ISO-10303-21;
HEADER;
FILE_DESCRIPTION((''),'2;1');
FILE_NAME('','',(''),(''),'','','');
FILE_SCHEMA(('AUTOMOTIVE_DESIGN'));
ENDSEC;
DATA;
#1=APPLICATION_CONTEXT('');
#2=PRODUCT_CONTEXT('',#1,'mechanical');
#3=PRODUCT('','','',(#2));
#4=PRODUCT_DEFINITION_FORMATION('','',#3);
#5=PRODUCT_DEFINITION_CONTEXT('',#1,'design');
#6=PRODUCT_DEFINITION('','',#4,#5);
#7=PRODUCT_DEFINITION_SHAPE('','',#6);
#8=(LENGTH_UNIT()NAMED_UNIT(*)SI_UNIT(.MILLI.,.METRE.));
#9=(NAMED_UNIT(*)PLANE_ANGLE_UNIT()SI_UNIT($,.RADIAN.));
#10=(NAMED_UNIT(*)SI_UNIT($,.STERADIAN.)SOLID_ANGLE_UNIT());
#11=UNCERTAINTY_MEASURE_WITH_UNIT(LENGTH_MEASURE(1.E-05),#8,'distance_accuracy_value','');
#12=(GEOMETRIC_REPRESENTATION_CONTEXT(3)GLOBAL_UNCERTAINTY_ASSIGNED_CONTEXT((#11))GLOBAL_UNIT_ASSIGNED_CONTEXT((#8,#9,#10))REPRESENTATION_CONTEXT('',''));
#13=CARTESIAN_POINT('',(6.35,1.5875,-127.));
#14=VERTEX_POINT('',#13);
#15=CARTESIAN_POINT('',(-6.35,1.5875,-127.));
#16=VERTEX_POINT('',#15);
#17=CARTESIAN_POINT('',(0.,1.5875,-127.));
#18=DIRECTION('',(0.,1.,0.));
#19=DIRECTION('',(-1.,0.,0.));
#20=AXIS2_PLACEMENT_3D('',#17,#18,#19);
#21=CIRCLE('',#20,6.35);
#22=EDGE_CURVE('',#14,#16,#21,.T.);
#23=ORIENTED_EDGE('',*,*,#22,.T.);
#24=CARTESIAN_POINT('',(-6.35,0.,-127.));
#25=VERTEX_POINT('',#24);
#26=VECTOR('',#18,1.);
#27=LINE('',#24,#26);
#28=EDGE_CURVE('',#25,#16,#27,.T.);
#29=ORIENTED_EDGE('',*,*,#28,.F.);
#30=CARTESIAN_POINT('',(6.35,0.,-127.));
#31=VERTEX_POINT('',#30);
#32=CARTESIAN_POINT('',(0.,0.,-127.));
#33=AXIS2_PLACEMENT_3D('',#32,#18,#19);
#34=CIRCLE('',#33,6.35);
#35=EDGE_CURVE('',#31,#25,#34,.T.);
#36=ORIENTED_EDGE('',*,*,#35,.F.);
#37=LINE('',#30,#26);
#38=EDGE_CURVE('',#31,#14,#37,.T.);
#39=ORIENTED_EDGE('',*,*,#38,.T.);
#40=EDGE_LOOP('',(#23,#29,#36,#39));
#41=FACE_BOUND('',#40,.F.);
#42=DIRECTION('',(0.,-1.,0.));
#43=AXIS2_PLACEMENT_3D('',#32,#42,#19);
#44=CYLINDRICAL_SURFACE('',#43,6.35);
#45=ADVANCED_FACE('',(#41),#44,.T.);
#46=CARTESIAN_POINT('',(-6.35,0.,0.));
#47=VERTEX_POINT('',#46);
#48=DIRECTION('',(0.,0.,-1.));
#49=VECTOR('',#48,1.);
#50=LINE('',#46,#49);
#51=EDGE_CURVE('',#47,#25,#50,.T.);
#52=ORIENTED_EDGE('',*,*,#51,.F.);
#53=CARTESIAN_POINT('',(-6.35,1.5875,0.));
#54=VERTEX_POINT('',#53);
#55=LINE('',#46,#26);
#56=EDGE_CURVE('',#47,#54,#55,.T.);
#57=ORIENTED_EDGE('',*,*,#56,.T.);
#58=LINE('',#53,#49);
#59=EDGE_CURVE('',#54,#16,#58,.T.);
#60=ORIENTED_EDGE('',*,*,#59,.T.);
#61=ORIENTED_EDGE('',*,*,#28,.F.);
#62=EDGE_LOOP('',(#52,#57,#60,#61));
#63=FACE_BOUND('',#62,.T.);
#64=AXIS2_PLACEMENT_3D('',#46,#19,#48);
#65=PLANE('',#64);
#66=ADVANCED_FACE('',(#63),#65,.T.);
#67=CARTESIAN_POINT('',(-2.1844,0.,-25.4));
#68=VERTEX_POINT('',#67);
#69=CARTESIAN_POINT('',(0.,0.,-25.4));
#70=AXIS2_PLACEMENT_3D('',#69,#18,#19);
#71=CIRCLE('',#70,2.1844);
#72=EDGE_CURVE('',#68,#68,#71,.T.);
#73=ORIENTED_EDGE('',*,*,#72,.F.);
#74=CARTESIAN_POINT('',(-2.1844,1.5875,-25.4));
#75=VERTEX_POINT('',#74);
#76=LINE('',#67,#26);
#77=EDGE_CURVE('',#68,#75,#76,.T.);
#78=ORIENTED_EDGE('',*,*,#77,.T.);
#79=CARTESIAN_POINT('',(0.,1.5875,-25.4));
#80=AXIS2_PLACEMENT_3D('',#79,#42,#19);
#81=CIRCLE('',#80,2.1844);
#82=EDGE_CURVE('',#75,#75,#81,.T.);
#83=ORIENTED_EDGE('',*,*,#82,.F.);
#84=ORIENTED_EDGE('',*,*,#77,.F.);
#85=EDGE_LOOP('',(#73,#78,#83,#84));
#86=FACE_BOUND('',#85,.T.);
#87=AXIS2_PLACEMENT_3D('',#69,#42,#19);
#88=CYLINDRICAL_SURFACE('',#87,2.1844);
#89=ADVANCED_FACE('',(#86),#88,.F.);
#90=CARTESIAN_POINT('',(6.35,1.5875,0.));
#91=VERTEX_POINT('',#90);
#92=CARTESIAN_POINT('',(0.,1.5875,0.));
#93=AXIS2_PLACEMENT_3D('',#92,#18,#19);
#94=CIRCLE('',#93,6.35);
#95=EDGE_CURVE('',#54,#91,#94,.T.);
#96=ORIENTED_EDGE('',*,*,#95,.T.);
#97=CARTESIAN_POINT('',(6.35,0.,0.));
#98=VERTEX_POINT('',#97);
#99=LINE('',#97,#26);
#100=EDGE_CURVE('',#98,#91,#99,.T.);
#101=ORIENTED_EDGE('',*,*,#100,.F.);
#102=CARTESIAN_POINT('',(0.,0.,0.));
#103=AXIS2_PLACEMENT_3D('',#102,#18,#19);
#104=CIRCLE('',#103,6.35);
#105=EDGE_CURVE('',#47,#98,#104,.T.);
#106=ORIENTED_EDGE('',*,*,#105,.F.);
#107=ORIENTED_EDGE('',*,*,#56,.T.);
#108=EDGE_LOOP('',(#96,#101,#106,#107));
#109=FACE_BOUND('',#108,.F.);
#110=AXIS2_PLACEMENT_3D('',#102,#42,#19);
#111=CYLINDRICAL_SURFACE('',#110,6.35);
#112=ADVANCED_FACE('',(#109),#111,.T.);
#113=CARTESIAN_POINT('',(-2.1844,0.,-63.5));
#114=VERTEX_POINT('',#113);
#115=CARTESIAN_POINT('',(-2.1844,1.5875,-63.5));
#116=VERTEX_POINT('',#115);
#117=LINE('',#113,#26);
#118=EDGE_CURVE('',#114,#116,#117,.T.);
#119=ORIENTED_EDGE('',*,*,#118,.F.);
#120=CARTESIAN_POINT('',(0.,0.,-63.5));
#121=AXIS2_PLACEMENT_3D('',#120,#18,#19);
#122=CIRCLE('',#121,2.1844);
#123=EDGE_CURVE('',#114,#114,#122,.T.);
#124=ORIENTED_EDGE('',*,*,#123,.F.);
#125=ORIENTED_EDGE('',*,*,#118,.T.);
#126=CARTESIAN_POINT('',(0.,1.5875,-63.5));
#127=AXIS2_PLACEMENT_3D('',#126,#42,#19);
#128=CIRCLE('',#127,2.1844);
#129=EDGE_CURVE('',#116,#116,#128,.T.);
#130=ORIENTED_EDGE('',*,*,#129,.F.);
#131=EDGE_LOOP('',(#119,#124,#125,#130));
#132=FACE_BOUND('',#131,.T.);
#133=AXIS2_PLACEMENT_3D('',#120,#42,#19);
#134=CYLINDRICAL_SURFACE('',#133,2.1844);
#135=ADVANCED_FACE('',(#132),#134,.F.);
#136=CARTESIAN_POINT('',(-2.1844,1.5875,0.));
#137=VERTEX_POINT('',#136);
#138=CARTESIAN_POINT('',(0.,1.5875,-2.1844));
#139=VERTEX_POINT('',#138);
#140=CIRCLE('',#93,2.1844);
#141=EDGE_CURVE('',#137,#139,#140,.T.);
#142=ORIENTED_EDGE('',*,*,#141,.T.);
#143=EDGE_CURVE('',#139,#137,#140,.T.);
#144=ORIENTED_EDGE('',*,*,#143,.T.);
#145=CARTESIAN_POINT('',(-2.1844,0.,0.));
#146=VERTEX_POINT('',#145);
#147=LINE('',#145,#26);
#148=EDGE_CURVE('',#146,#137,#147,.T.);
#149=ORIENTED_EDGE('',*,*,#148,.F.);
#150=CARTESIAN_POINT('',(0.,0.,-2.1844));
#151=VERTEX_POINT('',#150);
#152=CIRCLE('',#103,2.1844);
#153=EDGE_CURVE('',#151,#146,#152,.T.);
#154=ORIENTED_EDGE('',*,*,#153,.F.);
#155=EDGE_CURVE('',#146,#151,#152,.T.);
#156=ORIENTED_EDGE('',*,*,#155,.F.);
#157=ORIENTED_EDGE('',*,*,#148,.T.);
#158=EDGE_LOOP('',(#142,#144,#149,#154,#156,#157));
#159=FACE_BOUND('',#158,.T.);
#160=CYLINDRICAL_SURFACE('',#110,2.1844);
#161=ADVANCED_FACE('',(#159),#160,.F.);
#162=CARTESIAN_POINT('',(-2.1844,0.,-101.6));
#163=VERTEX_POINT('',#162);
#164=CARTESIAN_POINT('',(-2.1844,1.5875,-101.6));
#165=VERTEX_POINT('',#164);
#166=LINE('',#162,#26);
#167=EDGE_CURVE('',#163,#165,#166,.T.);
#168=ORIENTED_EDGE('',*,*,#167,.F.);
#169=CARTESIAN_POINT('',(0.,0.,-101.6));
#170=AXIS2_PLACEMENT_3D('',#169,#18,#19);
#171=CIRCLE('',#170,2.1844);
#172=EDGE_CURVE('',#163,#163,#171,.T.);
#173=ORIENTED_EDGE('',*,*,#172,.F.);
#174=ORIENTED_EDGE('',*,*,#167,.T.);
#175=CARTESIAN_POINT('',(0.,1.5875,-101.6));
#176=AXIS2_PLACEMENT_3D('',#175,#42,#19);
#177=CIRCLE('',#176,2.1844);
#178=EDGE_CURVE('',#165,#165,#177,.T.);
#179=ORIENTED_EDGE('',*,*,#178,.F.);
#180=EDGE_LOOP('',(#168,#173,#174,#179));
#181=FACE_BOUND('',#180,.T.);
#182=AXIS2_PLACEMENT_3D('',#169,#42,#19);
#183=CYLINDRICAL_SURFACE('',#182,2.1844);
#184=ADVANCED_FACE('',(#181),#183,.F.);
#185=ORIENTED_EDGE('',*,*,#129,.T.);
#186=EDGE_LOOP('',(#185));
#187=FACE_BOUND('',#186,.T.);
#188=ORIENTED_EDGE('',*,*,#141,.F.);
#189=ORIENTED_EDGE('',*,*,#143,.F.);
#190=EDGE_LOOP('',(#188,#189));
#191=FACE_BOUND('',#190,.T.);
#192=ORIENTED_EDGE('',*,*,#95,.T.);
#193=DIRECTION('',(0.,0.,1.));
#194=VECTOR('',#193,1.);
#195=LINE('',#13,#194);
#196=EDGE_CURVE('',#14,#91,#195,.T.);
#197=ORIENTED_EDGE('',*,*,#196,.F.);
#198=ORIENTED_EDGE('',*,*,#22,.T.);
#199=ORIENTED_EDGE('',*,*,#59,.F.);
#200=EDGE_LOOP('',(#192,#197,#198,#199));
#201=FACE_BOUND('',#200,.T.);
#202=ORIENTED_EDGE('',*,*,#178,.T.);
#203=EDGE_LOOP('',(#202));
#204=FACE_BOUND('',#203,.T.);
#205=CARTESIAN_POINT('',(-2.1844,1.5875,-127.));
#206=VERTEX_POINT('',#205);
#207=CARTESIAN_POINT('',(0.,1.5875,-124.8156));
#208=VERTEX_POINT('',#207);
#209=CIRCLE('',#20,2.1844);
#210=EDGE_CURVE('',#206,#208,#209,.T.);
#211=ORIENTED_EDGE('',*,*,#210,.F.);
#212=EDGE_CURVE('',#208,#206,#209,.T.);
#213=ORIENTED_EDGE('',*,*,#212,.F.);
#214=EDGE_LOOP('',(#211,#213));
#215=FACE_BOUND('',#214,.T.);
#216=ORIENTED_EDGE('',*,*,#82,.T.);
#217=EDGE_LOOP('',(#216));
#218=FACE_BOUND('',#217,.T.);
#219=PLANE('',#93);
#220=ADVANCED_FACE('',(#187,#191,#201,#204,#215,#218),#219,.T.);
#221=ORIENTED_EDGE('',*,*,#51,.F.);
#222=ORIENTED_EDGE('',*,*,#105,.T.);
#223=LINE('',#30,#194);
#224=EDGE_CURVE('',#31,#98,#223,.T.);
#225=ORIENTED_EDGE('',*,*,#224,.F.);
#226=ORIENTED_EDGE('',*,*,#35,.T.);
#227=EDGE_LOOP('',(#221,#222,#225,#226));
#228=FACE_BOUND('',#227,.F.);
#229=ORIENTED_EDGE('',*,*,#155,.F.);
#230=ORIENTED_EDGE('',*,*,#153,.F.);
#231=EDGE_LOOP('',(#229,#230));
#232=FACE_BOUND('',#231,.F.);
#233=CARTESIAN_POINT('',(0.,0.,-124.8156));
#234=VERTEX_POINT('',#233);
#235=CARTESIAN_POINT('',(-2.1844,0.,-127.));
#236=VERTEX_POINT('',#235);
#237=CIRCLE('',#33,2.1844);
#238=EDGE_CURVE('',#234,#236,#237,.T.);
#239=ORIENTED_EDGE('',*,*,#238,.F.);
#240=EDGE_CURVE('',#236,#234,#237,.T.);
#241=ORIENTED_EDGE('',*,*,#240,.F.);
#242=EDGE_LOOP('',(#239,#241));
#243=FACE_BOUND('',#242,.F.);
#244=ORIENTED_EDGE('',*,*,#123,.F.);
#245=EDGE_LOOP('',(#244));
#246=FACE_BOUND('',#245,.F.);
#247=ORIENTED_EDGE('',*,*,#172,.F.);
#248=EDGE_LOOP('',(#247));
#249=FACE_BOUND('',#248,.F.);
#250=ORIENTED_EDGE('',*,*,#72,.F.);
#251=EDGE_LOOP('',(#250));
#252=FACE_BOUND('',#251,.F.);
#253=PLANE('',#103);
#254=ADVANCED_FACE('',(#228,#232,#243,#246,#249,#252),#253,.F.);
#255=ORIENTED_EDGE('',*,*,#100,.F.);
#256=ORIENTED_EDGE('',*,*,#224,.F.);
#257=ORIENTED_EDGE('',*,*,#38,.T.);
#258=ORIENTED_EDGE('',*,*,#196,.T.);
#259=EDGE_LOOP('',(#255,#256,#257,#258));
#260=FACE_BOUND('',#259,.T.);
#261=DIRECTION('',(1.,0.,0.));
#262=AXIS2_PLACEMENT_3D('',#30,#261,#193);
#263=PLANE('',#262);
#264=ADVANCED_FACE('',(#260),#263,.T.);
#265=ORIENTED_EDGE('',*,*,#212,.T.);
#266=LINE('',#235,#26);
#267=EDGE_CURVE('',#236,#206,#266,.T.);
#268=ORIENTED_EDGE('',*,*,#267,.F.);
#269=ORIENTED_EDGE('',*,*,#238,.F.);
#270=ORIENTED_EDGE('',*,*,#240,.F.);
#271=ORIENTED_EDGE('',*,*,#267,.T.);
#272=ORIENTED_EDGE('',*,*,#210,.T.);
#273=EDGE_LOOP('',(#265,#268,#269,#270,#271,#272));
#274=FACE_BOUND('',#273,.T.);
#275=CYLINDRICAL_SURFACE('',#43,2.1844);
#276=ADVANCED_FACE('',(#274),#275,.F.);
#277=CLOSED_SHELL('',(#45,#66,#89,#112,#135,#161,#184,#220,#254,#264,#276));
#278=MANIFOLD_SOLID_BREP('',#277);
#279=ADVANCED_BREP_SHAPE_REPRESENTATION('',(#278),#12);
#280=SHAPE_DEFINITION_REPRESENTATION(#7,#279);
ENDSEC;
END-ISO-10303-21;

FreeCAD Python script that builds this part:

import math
import FreeCAD as App
import Part
import Sketcher
from FreeCAD import Vector
Q = App.Units.Quantity

doc = App.newDocument("Part")
params = doc.addObject("Spreadsheet::Sheet", "Params")
for row, (alias, value) in enumerate([
    ("sketch1_radius", "0.25 in"),
    ("sketch1_diameter", "0.172 in"),
    ("pad1_length", "0.0625 in"),
], start=1):
    params.set(f"A{row}", alias)
    params.set(f"B{row}", "=" + value)
    params.setAlias(f"B{row}", alias)

body = doc.addObject("PartDesign::Body", "Body")

sketch1 = doc.addObject("Sketcher::SketchObject", "Sketch")
body.addObject(sketch1)
sketch1.AttachmentSupport = (doc.XZ_Plane, [""])
sketch1.MapMode = "FlatFace"
sketch1.addGeometry([
    Part.ArcOfCircle(Part.Circle(Vector(0, 0, 0), Vector(0, 0, 1), 6.3), math.radians(0), math.radians(180)),
    Part.LineSegment(Vector(6.3, 0, 0), Vector(6.3, -127, 0)),
    Part.ArcOfCircle(Part.Circle(Vector(0, -127, 0), Vector(0, 0, 1), 6.3), math.radians(180), math.radians(360)),
    Part.LineSegment(Vector(-6.3, -127, 0), Vector(-6.3, 0, 0)),
    Part.Circle(Vector(0, 0, 0), Vector(0, 0, 1), 2.2),
    Part.Circle(Vector(0, -25.4, 0), Vector(0, 0, 1), 2.2),
    Part.Circle(Vector(0, -63.5, 0), Vector(0, 0, 1), 2.2),
    Part.Circle(Vector(0, -101.6, 0), Vector(0, 0, 1), 2.2),
    Part.Circle(Vector(0, -127, 0), Vector(0, 0, 1), 2.2),
], False)
sketch1.addConstraint([
    Sketcher.Constraint("Tangent", 0, 1, 1, 1),
    Sketcher.Constraint("Tangent", 1, 2, 2, 2),
    Sketcher.Constraint("Tangent", 2, 1, 3, 1),
    Sketcher.Constraint("Tangent", 3, 2, 0, 2),
    Sketcher.Constraint("Vertical", 1),
    Sketcher.Constraint("Vertical", 3),
    Sketcher.Constraint("Coincident", 0, 3, -1, 1),
    Sketcher.Constraint("Coincident", 4, 3, -1, 1),
    Sketcher.Constraint("Coincident", 8, 3, 2, 3),
    Sketcher.Constraint("Equal", 4, 5),
    Sketcher.Constraint("Equal", 5, 6),
    Sketcher.Constraint("Equal", 6, 7),
    Sketcher.Constraint("Equal", 7, 8),
    Sketcher.Constraint("PointOnObject", 5, 3, -2),
    Sketcher.Constraint("PointOnObject", 6, 3, -2),
    Sketcher.Constraint("PointOnObject", 7, 3, -2),
    Sketcher.Constraint("Radius", 0, Q("0.25 in")),
    Sketcher.Constraint("Diameter", 4, Q("0.172 in")),
    Sketcher.Constraint("DistanceY", 5, 3, -1, 1, Q("1 in")),
    Sketcher.Constraint("DistanceY", 2, 3, 7, 3, Q("1 in")),
    Sketcher.Constraint("DistanceY", 6, 3, 5, 3, Q("1.5 in")),
    Sketcher.Constraint("DistanceY", 7, 3, 6, 3, Q("1.5 in")),
])
sketch1.setExpression("Constraints[16]", "Params.sketch1_radius")
sketch1.setExpression("Constraints[17]", "Params.sketch1_diameter")
pad1 = doc.addObject("PartDesign::Pad", "Pad")
body.addObject(pad1)
pad1.Profile = sketch1
pad1.setExpression("Length", "Params.pad1_length")
pad1.Reversed = True

doc.recompute()
